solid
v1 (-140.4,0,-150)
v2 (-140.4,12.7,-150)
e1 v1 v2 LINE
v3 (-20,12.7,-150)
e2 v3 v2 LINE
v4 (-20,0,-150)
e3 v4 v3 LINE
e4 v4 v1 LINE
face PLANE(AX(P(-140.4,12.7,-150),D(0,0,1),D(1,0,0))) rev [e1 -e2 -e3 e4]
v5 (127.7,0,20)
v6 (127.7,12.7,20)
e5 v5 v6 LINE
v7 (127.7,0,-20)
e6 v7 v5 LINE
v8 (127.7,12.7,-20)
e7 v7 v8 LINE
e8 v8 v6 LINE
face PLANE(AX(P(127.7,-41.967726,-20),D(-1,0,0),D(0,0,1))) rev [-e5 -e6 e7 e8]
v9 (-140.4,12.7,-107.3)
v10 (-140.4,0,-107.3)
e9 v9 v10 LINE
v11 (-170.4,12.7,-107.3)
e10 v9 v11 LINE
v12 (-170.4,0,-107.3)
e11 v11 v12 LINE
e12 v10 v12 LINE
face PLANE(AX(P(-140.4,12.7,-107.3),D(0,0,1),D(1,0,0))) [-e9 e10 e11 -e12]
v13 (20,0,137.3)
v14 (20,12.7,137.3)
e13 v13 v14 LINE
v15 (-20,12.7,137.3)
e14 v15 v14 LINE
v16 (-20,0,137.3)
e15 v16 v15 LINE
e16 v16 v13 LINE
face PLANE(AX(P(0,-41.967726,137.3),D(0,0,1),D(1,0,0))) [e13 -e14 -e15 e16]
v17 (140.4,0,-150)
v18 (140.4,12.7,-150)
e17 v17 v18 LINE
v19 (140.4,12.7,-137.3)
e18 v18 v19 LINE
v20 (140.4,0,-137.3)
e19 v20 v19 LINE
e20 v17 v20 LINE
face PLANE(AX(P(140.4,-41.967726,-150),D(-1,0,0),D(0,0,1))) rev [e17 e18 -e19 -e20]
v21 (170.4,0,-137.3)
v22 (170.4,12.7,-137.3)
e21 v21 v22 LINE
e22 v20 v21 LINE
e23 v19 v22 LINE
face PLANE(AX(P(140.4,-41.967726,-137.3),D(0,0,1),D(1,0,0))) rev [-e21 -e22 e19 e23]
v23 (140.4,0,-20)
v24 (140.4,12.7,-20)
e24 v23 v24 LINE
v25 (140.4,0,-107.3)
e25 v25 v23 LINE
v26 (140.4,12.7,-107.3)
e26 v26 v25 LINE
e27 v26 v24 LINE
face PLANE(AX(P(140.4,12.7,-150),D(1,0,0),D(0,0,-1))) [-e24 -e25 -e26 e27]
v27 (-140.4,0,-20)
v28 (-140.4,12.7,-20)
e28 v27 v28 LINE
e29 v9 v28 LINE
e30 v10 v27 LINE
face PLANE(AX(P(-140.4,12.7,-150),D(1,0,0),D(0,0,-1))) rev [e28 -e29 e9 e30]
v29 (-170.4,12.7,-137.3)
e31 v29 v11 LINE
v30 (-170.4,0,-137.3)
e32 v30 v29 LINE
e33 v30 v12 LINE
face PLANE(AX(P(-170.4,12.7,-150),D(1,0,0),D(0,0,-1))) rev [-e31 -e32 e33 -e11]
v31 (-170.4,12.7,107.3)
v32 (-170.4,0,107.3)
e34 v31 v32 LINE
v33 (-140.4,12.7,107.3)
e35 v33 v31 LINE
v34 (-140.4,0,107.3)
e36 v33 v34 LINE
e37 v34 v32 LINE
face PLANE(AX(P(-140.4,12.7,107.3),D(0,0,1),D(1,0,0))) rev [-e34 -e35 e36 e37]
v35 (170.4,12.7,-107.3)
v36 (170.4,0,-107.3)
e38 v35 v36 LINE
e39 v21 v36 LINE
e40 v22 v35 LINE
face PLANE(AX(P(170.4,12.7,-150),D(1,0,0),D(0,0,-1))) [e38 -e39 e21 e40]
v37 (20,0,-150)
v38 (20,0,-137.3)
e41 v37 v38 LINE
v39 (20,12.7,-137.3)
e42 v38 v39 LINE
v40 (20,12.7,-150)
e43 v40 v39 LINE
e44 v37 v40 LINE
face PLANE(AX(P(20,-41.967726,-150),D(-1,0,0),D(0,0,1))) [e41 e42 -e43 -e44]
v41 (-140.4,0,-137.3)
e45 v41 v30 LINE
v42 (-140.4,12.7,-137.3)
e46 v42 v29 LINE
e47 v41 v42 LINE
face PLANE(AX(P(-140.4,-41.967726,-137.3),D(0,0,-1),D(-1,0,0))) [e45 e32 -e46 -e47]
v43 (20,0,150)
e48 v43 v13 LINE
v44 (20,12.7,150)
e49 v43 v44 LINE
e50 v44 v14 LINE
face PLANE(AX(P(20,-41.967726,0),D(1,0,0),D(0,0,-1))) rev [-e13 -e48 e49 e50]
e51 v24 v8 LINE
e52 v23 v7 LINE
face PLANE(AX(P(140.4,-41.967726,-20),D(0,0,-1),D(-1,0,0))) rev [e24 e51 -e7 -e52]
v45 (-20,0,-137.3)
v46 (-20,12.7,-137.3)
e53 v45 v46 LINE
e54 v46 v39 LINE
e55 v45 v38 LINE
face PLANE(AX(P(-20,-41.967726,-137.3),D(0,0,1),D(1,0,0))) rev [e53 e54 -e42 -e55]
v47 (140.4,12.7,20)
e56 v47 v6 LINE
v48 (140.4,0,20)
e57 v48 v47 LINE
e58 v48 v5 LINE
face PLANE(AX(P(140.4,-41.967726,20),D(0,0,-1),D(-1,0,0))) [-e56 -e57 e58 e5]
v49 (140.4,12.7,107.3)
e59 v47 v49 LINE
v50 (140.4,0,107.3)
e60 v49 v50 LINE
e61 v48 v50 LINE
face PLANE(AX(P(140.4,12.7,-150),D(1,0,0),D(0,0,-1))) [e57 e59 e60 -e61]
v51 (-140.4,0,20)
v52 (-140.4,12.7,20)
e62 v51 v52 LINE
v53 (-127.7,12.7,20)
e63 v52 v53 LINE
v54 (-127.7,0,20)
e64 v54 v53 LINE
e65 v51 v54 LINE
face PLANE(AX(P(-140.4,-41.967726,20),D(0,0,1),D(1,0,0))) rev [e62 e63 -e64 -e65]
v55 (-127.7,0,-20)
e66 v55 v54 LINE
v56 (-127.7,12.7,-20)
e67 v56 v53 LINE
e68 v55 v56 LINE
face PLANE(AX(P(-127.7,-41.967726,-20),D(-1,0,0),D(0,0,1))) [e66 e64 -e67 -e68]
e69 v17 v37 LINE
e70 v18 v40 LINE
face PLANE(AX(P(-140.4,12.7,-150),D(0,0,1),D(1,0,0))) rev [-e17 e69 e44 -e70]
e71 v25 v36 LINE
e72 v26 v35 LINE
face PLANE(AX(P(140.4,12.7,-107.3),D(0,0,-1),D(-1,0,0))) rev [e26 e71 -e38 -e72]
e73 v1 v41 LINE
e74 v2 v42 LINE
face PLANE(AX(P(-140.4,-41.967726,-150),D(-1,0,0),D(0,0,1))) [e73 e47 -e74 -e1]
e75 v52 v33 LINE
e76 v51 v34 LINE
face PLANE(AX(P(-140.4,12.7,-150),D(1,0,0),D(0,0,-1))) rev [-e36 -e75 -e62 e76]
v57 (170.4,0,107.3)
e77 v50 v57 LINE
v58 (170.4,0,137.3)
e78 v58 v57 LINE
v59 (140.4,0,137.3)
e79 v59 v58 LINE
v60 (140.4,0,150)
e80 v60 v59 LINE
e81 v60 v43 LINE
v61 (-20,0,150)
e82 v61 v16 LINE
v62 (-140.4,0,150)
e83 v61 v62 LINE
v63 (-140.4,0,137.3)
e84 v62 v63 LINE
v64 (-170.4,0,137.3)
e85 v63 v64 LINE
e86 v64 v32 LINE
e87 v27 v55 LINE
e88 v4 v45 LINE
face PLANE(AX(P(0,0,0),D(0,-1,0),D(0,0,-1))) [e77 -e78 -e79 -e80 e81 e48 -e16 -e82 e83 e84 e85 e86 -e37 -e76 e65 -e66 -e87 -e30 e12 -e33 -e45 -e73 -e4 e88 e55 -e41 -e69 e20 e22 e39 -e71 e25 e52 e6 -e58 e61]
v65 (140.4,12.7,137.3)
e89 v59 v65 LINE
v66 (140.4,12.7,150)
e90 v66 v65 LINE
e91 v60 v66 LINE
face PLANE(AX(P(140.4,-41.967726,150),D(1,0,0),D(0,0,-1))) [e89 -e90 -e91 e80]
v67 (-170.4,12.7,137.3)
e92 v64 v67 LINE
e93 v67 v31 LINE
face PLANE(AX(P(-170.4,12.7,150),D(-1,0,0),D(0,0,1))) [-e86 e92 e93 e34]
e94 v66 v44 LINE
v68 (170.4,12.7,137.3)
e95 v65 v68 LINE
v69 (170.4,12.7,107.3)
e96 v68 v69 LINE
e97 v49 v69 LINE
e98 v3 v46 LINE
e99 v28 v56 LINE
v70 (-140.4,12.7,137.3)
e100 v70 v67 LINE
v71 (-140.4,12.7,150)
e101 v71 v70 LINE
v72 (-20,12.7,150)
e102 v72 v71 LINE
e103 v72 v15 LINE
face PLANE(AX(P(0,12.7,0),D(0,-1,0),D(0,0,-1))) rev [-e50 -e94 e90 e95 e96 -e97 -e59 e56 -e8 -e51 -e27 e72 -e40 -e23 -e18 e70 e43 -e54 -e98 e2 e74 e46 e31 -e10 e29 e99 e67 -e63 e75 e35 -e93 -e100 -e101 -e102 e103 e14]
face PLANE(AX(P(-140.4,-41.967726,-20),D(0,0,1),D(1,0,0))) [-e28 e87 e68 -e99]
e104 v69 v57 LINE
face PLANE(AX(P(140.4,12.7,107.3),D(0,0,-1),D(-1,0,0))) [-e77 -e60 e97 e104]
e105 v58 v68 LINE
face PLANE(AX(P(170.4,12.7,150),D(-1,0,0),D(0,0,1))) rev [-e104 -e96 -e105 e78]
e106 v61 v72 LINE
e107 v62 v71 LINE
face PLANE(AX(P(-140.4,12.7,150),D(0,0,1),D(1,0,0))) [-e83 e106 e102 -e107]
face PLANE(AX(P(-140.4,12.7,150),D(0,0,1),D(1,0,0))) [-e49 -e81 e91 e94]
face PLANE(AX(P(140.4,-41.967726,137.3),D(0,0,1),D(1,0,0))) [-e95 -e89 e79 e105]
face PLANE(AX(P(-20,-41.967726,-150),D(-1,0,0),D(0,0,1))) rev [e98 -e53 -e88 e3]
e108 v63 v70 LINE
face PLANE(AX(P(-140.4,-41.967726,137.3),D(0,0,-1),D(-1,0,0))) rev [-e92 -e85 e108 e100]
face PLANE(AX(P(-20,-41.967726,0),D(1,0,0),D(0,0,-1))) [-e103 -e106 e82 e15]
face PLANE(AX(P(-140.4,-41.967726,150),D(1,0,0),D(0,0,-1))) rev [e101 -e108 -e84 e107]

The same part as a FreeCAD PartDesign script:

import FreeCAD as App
import Part
import Sketcher

V = App.Vector
Q = App.Units.Quantity

doc = App.newDocument("Part")
body = doc.addObject("PartDesign::Body", "Body")

# Sketch on XZ plane
sketch1 = doc.addObject("Sketcher::SketchObject", "Sketch")
body.addObject(sketch1)
sketch1.AttachmentSupport = (doc.XZ_Plane, [""])
sketch1.MapMode = "FlatFace"
sketch1.addGeometry([
    Part.LineSegment(V(-170, -150, 0), V(-170, -107, 0)),  # 0
    Part.LineSegment(V(-170, -107, 0), V(-140, -107, 0)),  # 1
    Part.LineSegment(V(-140, -107, 0), V(-140, 107, 0)),  # 2
    Part.LineSegment(V(-140, 107, 0), V(-170, 107, 0)),  # 3
    Part.LineSegment(V(-170, 107, 0), V(-170, 150, 0)),  # 4
    Part.LineSegment(V(-170, 150, 0), V(170, 150, 0)),  # 5
    Part.LineSegment(V(170, 150, 0), V(170, 107, 0)),  # 6
    Part.LineSegment(V(170, 107, 0), V(140, 107, 0)),  # 7
    Part.LineSegment(V(140, 107, 0), V(140, -107, 0)),  # 8
    Part.LineSegment(V(140, -107, 0), V(170, -107, 0)),  # 9
    Part.LineSegment(V(170, -107, 0), V(170, -150, 0)),  # 10
    Part.LineSegment(V(170, -150, 0), V(-170, -150, 0)),  # 11
], False)
sketch1.addConstraint([
    Sketcher.Constraint("Coincident", 0, 2, 1, 1),
    Sketcher.Constraint("Coincident", 1, 2, 2, 1),
    Sketcher.Constraint("Coincident", 2, 2, 3, 1),
    Sketcher.Constraint("Coincident", 3, 2, 4, 1),
    Sketcher.Constraint("Coincident", 4, 2, 5, 1),
    Sketcher.Constraint("Coincident", 5, 2, 6, 1),
    Sketcher.Constraint("Coincident", 6, 2, 7, 1),
    Sketcher.Constraint("Coincident", 7, 2, 8, 1),
    Sketcher.Constraint("Coincident", 8, 2, 9, 1),
    Sketcher.Constraint("Coincident", 9, 2, 10, 1),
    Sketcher.Constraint("Coincident", 10, 2, 11, 1),
    Sketcher.Constraint("Coincident", 11, 2, 0, 1),
    Sketcher.Constraint("Vertical", 0),
    Sketcher.Constraint("Horizontal", 1),
    Sketcher.Constraint("Vertical", 2),
    Sketcher.Constraint("Horizontal", 3),
    Sketcher.Constraint("Vertical", 4),
    Sketcher.Constraint("Horizontal", 5),
    Sketcher.Constraint("Vertical", 6),
    Sketcher.Constraint("Horizontal", 7),
    Sketcher.Constraint("Vertical", 8),
    Sketcher.Constraint("Horizontal", 9),
    Sketcher.Constraint("Vertical", 10),
    Sketcher.Constraint("Horizontal", 11),
    Sketcher.Constraint("Symmetric", 0, 2, 6, 2, -1, 1),
    Sketcher.Constraint("Symmetric", 2, 2, 8, 2, -1, 1),
    Sketcher.Constraint("Symmetric", 4, 2, 10, 2, -1, 1),
    Sketcher.Constraint("Symmetric", 3, 2, 6, 2, -2),
    Sketcher.Constraint("DistanceX", 1, 1, 1, 2, Q("30 mm")),
    Sketcher.Constraint("DistanceX", 5, 1, 5, 2, Q("340.8 mm")),
    Sketcher.Constraint("DistanceY", 0, 1, 0, 2, Q("42.7 mm")),
    Sketcher.Constraint("DistanceY", 2, 1, 2, 2, Q("214.6 mm")),
])
pad1 = doc.addObject("PartDesign::Pad", "Pad")
body.addObject(pad1)
pad1.Profile = sketch1
pad1.Length = 12.7
pad1.Reversed = True

# Sketch on XZ plane
sketch2 = doc.addObject("Sketcher::SketchObject", "Sketch001")
body.addObject(sketch2)
sketch2.AttachmentSupport = (doc.XZ_Plane, [""])
sketch2.MapMode = "FlatFace"
sketch2.AttachmentOffset = App.Placement(V(0, 0, -12.7), App.Rotation())
sketch2.addGeometry([
    Part.LineSegment(V(-20, 137, 0), V(-20, 150, 0)),  # 0
    Part.LineSegment(V(-20, 150, 0), V(20, 150, 0)),  # 1
    Part.LineSegment(V(20, 150, 0), V(20, 137, 0)),  # 2
    Part.LineSegment(V(20, 137, 0), V(-20, 137, 0)),  # 3
    Part.LineSegment(V(-140, -20, 0), V(-140, 20, 0)),  # 4
    Part.LineSegment(V(-140, 20, 0), V(-128, 20, 0)),  # 5
    Part.LineSegment(V(-128, 20, 0), V(-128, -20, 0)),  # 6
    Part.LineSegment(V(-128, -20, 0), V(-140, -20, 0)),  # 7
    Part.LineSegment(V(128, -20, 0), V(128, 20, 0)),  # 8
    Part.LineSegment(V(128, 20, 0), V(140, 20, 0)),  # 9
    Part.LineSegment(V(140, 20, 0), V(140, -20, 0)),  # 10
    Part.LineSegment(V(140, -20, 0), V(128, -20, 0)),  # 11
    Part.LineSegment(V(-20, -150, 0), V(-20, -137, 0)),  # 12
    Part.LineSegment(V(-20, -137, 0), V(20, -137, 0)),  # 13
    Part.LineSegment(V(20, -137, 0), V(20, -150, 0)),  # 14
    Part.LineSegment(V(20, -150, 0), V(-20, -150, 0)),  # 15
    Part.LineSegment(V(-170, -150, 0), V(-170, -137, 0)),  # 16
    Part.LineSegment(V(-170, -137, 0), V(-140, -137, 0)),  # 17
    Part.LineSegment(V(-140, -137, 0), V(-140, -150, 0)),  # 18
    Part.LineSegment(V(-140, -150, 0), V(-170, -150, 0)),  # 19
    Part.LineSegment(V(140, -150, 0), V(140, -137, 0)),  # 20
    Part.LineSegment(V(140, -137, 0), V(170, -137, 0)),  # 21
    Part.LineSegment(V(170, -137, 0), V(170, -150, 0)),  # 22
    Part.LineSegment(V(170, -150, 0), V(140, -150, 0)),  # 23
    Part.LineSegment(V(-170, 137, 0), V(-170, 150, 0)),  # 24
    Part.LineSegment(V(-170, 150, 0), V(-140, 150, 0)),  # 25
    Part.LineSegment(V(-140, 150, 0), V(-140, 137, 0)),  # 26
    Part.LineSegment(V(-140, 137, 0), V(-170, 137, 0)),  # 27
    Part.LineSegment(V(140, 137, 0), V(140, 150, 0)),  # 28
    Part.LineSegment(V(140, 150, 0), V(170, 150, 0)),  # 29
    Part.LineSegment(V(170, 150, 0), V(170, 137, 0)),  # 30
    Part.LineSegment(V(170, 137, 0), V(140, 137, 0)),  # 31
], False)
sketch2.addConstraint([
    Sketcher.Constraint("Coincident", 0, 2, 1, 1),
    Sketcher.Constraint("Coincident", 1, 2, 2, 1),
    Sketcher.Constraint("Coincident", 2, 2, 3, 1),
    Sketcher.Constraint("Coincident", 3, 2, 0, 1),
    Sketcher.Constraint("Coincident", 4, 2, 5, 1),
    Sketcher.Constraint("Coincident", 5, 2, 6, 1),
    Sketcher.Constraint("Coincident", 6, 2, 7, 1),
    Sketcher.Constraint("Coincident", 7, 2, 4, 1),
    Sketcher.Constraint("Coincident", 8, 2, 9, 1),
    Sketcher.Constraint("Coincident", 9, 2, 10, 1),
    Sketcher.Constraint("Coincident", 10, 2, 11, 1),
    Sketcher.Constraint("Coincident", 11, 2, 8, 1),
    Sketcher.Constraint("Coincident", 12, 2, 13, 1),
    Sketcher.Constraint("Coincident", 13, 2, 14, 1),
    Sketcher.Constraint("Coincident", 14, 2, 15, 1),
    Sketcher.Constraint("Coincident", 15, 2, 12, 1),
    Sketcher.Constraint("Coincident", 16, 2, 17, 1),
    Sketcher.Constraint("Coincident", 17, 2, 18, 1),
    Sketcher.Constraint("Coincident", 18, 2, 19, 1),
    Sketcher.Constraint("Coincident", 19, 2, 16, 1),
    Sketcher.Constraint("Coincident", 20, 2, 21, 1),
    Sketcher.Constraint("Coincident", 21, 2, 22, 1),
    Sketcher.Constraint("Coincident", 22, 2, 23, 1),
    Sketcher.Constraint("Coincident", 23, 2, 20, 1),
    Sketcher.Constraint("Coincident", 24, 2, 25, 1),
    Sketcher.Constraint("Coincident", 25, 2, 26, 1),
    Sketcher.Constraint("Coincident", 26, 2, 27, 1),
    Sketcher.Constraint("Coincident", 27, 2, 24, 1),
    Sketcher.Constraint("Coincident", 28, 2, 29, 1),
    Sketcher.Constraint("Coincident", 29, 2, 30, 1),
    Sketcher.Constraint("Coincident", 30, 2, 31, 1),
    Sketcher.Constraint("Coincident", 31, 2, 28, 1),
    Sketcher.Constraint("Vertical", 0),
    Sketcher.Constraint("Horizontal", 1),
    Sketcher.Constraint("Vertical", 2),
    Sketcher.Constraint("Horizontal", 3),
    Sketcher.Constraint("Vertical", 4),
    Sketcher.Constraint("Horizontal", 5),
    Sketcher.Constraint("Vertical", 6),
    Sketcher.Constraint("Horizontal", 7),
    Sketcher.Constraint("Vertical", 8),
    Sketcher.Constraint("Horizontal", 9),
    Sketcher.Constraint("Vertical", 10),
    Sketcher.Constraint("Horizontal", 11),
    Sketcher.Constraint("Vertical", 12),
    Sketcher.Constraint("Horizontal", 13),
    Sketcher.Constraint("Vertical", 14),
    Sketcher.Constraint("Horizontal", 15),
    Sketcher.Constraint("Vertical", 16),
    Sketcher.Constraint("Horizontal", 17),
    Sketcher.Constraint("Vertical", 18),
    Sketcher.Constraint("Horizontal", 19),
    Sketcher.Constraint("Vertical", 20),
    Sketcher.Constraint("Horizontal", 21),
    Sketcher.Constraint("Vertical", 22),
    Sketcher.Constraint("Horizontal", 23),
    Sketcher.Constraint("Vertical", 24),
    Sketcher.Constraint("Horizontal", 25),
    Sketcher.Constraint("Vertical", 26),
    Sketcher.Constraint("Horizontal", 27),
    Sketcher.Constraint("Vertical", 28),
    Sketcher.Constraint("Horizontal", 29),
    Sketcher.Constraint("Vertical", 30),
    Sketcher.Constraint("Horizontal", 31),
    Sketcher.Constraint("Symmetric", 6, 2, 8, 2, -1, 1),
    Sketcher.Constraint("Symmetric", 4, 2, 10, 2, -1, 1),
    Sketcher.Constraint("Symmetric", 2, 2, 12, 2, -1, 1),
    Sketcher.Constraint("Symmetric", 0, 2, 14, 2, -1, 1),
    Sketcher.Constraint("Symmetric", 22, 2, 24, 2, -1, 1),
    Sketcher.Constraint("Symmetric", 20, 2, 26, 2, -1, 1),
    Sketcher.Constraint("Symmetric", 18, 2, 28, 2, -1, 1),
    Sketcher.Constraint("Symmetric", 16, 2, 30, 2, -1, 1),
    Sketcher.Constraint("Symmetric", 17, 2, 20, 2, -2),
    Sketcher.Constraint("Symmetric", 19, 2, 22, 2, -2),
    Sketcher.Constraint("Horizontal", 5, 2, 8, 2),
    Sketcher.Constraint("Horizontal", 13, 2, 16, 2),
    Sketcher.Constraint("Horizontal", 15, 2, 18, 2),
    Sketcher.Constraint("Vertical", 3, 2, 12, 2),
    Sketcher.Constraint("Vertical", 7, 2, 17, 2),
    Sketcher.Constraint("Equal", 11, 0),
    Sketcher.Constraint("Equal", 15, 4),
    Sketcher.Constraint("DistanceX", 1, 1, 1, 2, Q("40 mm")),
    Sketcher.Constraint("DistanceX", 17, 1, 17, 2, Q("30 mm")),
    Sketcher.Constraint("DistanceX", 5, 1, 5, 2, Q("12.7 mm")),
    Sketcher.Constraint("DistanceY", -1, 1, 0, 2, Q("150 mm")),
    Sketcher.Constraint("DistanceX", 4, 2, -1, 1, Q("140.4 mm")),
])
pocket1 = doc.addObject("PartDesign::Pocket", "Pocket")
body.addObject(pocket1)
pocket1.Profile = sketch2
pocket1.Length = 12.7
pocket1.Reversed = True

doc.recompute()
